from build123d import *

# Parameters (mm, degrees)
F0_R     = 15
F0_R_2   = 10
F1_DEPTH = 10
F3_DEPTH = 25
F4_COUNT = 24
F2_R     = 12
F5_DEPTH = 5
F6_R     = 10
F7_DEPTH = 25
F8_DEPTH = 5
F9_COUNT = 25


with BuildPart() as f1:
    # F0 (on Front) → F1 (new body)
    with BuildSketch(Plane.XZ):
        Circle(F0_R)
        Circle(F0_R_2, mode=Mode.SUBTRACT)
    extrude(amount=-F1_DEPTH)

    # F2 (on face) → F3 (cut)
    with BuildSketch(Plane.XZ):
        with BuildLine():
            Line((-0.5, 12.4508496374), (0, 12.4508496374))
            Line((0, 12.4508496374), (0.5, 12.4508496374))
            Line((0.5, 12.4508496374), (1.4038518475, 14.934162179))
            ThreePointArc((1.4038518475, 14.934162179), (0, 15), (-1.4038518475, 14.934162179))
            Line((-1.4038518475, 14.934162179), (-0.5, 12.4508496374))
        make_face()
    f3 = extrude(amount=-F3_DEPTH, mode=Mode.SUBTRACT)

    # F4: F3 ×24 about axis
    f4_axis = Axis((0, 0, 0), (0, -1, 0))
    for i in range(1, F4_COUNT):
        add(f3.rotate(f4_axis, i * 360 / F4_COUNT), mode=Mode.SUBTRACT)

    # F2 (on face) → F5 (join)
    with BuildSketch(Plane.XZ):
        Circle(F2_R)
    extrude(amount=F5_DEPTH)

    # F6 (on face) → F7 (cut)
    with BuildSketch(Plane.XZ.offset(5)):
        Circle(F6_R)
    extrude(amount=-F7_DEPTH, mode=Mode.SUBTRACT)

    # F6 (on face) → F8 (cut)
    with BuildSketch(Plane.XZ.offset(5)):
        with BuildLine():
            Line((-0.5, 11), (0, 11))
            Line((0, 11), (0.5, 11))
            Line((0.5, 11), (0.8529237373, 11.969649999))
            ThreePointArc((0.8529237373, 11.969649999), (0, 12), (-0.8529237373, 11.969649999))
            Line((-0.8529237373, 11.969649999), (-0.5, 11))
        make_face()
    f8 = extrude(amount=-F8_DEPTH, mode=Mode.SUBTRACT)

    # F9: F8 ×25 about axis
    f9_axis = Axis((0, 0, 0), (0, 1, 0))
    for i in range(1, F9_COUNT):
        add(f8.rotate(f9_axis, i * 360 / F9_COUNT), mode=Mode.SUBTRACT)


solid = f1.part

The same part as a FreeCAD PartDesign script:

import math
import FreeCAD as App
import Part
import Sketcher

V = App.Vector
Q = App.Units.Quantity

doc = App.newDocument("Part")
body = doc.addObject("PartDesign::Body", "Body")

# Sketch on XZ plane
sketch1 = body.newObject("Sketcher::SketchObject", "Sketch")
sketch1.AttachmentSupport = (doc.getObject("XZ_Plane"), [""])
sketch1.MapMode = "FlatFace"
sketch1.addGeometry([
    Part.Circle(V(0, 0, 0), V(0, 0, 1), 15),
    Part.Circle(V(0, 0, 0), V(0, 0, 1), 10),
], False)
sketch1.addConstraint([
    Sketcher.Constraint("Coincident", 0, 3, -1, 1),
    Sketcher.Constraint("Coincident", 1, 3, -1, 1),
    Sketcher.Constraint("Diameter", 0, 30.0),
    Sketcher.Constraint("Diameter", 1, 20.0),
])
pad1 = body.newObject("PartDesign::Pad", "Pad")
pad1.Profile = sketch1
pad1.Length = 10
pad1.Reversed = True

# Sketch on XZ plane
sketch2 = body.newObject("Sketcher::SketchObject", "Sketch001")
sketch2.AttachmentSupport = (doc.getObject("XZ_Plane"), [""])
sketch2.MapMode = "FlatFace"
sketch2.addGeometry([
    Part.LineSegment(V(-0.5, 12.5, 0), V(0.5, 12.5, 0)),
    Part.LineSegment(V(0.5, 12.5, 0), V(1.4, 14.9, 0)),
    Part.ArcOfCircle(Part.Circle(V(0, 0, 0), V(0, 0, 1), 15), math.radians(84.63), math.radians(95.37)),
    Part.LineSegment(V(-1.4, 14.9, 0), V(-0.5, 12.5, 0)),
], False)
sketch2.addConstraint([
    Sketcher.Constraint("Coincident", 0, 2, 1, 1),
    Sketcher.Constraint("Coincident", 1, 2, 2, 1),
    Sketcher.Constraint("Coincident", 2, 2, 3, 1),
    Sketcher.Constraint("Coincident", 3, 2, 0, 1),
    Sketcher.Constraint("Horizontal", 0),
    Sketcher.Constraint("Coincident", 2, 3, -1, 1),
    Sketcher.Constraint("Horizontal", 1, 2, 2, 2),
    Sketcher.Constraint("Equal", 1, 3),
    Sketcher.Constraint("Radius", 2, 15.0),
    Sketcher.Constraint("DistanceX", 0, 1, 0, 2, 1.0),
    Sketcher.Constraint("Angle", 1, Q("70 deg")),
    Sketcher.Constraint("DistanceY", -1, 1, 0, 2, 12.45085),
])
pocket1 = body.newObject("PartDesign::Pocket", "Pocket")
pocket1.Profile = sketch2
pocket1.Length = 25
doc.recompute()

polarpattern = body.newObject("PartDesign::PolarPattern", "PolarPattern")
polarpattern.Originals = [pocket1]
polarpattern.Axis = (doc.getObject("Y_Axis"), [""])
polarpattern.Angle = 360
polarpattern.Occurrences = 24
body.Tip = polarpattern

# Sketch on XZ plane
sketch3 = body.newObject("Sketcher::SketchObject", "Sketch002")
sketch3.AttachmentSupport = (doc.getObject("XZ_Plane"), [""])
sketch3.MapMode = "FlatFace"
sketch3.addGeometry(Part.Circle(V(0, 0, 0), V(0, 0, 1), 12), False)
sketch3.addConstraint([
    Sketcher.Constraint("Coincident", 0, 3, -1, 1),
    Sketcher.Constraint("Diameter", 0, 24.0),
])
pad2 = body.newObject("PartDesign::Pad", "Pad001")
pad2.Profile = sketch3
pad2.Length = 5

# Sketch on XZ plane
sketch4 = body.newObject("Sketcher::SketchObject", "Sketch003")
sketch4.AttachmentSupport = (doc.getObject("XZ_Plane"), [""])
sketch4.MapMode = "FlatFace"
sketch4.AttachmentOffset = App.Placement(V(0, 0, 5), App.Rotation())
sketch4.addGeometry(Part.Circle(V(0, 0, 0), V(0, 0, 1), 10), False)
sketch4.addConstraint([
    Sketcher.Constraint("Coincident", 0, 3, -1, 1),
    Sketcher.Constraint("Diameter", 0, 20.0),
])
pocket2 = body.newObject("PartDesign::Pocket", "Pocket001")
pocket2.Profile = sketch4
pocket2.Length = 25

# Sketch on XZ plane
sketch5 = body.newObject("Sketcher::SketchObject", "Sketch004")
sketch5.AttachmentSupport = (doc.getObject("XZ_Plane"), [""])
sketch5.MapMode = "FlatFace"
sketch5.AttachmentOffset = App.Placement(V(0, 0, 5), App.Rotation())
sketch5.addGeometry([
    Part.LineSegment(V(-0.5, 11, 0), V(0.5, 11, 0)),
    Part.LineSegment(V(0.5, 11, 0), V(0.9, 12, 0)),
    Part.ArcOfCircle(Part.Circle(V(0, 0, 0), V(0, 0, 1), 12), math.radians(85.92), math.radians(94.08)),
    Part.LineSegment(V(-0.9, 12, 0), V(-0.5, 11, 0)),
], False)
sketch5.addConstraint([
    Sketcher.Constraint("Coincident", 0, 2, 1, 1),
    Sketcher.Constraint("Coincident", 1, 2, 2, 1),
    Sketcher.Constraint("Coincident", 2, 2, 3, 1),
    Sketcher.Constraint("Coincident", 3, 2, 0, 1),
    Sketcher.Constraint("Horizontal", 0),
    Sketcher.Constraint("Coincident", 2, 3, -1, 1),
    Sketcher.Constraint("Horizontal", 1, 2, 2, 2),
    Sketcher.Constraint("Equal", 1, 3),
    Sketcher.Constraint("Radius", 2, 12.0),
    Sketcher.Constraint("DistanceX", 0, 1, 0, 2, 1.0),
    Sketcher.Constraint("Angle", 1, Q("70 deg")),
    Sketcher.Constraint("DistanceY", -1, 1, 0, 2, 11.0),
])
pocket3 = body.newObject("PartDesign::Pocket", "Pocket002")
pocket3.Profile = sketch5
pocket3.Length = 5
doc.recompute()

polarpattern2 = body.newObject("PartDesign::PolarPattern", "PolarPattern001")
polarpattern2.Originals = [pocket3]
polarpattern2.Axis = (doc.getObject("Y_Axis"), [""])
polarpattern2.Angle = 360
polarpattern2.Occurrences = 25
body.Tip = polarpattern2

doc.recompute()
